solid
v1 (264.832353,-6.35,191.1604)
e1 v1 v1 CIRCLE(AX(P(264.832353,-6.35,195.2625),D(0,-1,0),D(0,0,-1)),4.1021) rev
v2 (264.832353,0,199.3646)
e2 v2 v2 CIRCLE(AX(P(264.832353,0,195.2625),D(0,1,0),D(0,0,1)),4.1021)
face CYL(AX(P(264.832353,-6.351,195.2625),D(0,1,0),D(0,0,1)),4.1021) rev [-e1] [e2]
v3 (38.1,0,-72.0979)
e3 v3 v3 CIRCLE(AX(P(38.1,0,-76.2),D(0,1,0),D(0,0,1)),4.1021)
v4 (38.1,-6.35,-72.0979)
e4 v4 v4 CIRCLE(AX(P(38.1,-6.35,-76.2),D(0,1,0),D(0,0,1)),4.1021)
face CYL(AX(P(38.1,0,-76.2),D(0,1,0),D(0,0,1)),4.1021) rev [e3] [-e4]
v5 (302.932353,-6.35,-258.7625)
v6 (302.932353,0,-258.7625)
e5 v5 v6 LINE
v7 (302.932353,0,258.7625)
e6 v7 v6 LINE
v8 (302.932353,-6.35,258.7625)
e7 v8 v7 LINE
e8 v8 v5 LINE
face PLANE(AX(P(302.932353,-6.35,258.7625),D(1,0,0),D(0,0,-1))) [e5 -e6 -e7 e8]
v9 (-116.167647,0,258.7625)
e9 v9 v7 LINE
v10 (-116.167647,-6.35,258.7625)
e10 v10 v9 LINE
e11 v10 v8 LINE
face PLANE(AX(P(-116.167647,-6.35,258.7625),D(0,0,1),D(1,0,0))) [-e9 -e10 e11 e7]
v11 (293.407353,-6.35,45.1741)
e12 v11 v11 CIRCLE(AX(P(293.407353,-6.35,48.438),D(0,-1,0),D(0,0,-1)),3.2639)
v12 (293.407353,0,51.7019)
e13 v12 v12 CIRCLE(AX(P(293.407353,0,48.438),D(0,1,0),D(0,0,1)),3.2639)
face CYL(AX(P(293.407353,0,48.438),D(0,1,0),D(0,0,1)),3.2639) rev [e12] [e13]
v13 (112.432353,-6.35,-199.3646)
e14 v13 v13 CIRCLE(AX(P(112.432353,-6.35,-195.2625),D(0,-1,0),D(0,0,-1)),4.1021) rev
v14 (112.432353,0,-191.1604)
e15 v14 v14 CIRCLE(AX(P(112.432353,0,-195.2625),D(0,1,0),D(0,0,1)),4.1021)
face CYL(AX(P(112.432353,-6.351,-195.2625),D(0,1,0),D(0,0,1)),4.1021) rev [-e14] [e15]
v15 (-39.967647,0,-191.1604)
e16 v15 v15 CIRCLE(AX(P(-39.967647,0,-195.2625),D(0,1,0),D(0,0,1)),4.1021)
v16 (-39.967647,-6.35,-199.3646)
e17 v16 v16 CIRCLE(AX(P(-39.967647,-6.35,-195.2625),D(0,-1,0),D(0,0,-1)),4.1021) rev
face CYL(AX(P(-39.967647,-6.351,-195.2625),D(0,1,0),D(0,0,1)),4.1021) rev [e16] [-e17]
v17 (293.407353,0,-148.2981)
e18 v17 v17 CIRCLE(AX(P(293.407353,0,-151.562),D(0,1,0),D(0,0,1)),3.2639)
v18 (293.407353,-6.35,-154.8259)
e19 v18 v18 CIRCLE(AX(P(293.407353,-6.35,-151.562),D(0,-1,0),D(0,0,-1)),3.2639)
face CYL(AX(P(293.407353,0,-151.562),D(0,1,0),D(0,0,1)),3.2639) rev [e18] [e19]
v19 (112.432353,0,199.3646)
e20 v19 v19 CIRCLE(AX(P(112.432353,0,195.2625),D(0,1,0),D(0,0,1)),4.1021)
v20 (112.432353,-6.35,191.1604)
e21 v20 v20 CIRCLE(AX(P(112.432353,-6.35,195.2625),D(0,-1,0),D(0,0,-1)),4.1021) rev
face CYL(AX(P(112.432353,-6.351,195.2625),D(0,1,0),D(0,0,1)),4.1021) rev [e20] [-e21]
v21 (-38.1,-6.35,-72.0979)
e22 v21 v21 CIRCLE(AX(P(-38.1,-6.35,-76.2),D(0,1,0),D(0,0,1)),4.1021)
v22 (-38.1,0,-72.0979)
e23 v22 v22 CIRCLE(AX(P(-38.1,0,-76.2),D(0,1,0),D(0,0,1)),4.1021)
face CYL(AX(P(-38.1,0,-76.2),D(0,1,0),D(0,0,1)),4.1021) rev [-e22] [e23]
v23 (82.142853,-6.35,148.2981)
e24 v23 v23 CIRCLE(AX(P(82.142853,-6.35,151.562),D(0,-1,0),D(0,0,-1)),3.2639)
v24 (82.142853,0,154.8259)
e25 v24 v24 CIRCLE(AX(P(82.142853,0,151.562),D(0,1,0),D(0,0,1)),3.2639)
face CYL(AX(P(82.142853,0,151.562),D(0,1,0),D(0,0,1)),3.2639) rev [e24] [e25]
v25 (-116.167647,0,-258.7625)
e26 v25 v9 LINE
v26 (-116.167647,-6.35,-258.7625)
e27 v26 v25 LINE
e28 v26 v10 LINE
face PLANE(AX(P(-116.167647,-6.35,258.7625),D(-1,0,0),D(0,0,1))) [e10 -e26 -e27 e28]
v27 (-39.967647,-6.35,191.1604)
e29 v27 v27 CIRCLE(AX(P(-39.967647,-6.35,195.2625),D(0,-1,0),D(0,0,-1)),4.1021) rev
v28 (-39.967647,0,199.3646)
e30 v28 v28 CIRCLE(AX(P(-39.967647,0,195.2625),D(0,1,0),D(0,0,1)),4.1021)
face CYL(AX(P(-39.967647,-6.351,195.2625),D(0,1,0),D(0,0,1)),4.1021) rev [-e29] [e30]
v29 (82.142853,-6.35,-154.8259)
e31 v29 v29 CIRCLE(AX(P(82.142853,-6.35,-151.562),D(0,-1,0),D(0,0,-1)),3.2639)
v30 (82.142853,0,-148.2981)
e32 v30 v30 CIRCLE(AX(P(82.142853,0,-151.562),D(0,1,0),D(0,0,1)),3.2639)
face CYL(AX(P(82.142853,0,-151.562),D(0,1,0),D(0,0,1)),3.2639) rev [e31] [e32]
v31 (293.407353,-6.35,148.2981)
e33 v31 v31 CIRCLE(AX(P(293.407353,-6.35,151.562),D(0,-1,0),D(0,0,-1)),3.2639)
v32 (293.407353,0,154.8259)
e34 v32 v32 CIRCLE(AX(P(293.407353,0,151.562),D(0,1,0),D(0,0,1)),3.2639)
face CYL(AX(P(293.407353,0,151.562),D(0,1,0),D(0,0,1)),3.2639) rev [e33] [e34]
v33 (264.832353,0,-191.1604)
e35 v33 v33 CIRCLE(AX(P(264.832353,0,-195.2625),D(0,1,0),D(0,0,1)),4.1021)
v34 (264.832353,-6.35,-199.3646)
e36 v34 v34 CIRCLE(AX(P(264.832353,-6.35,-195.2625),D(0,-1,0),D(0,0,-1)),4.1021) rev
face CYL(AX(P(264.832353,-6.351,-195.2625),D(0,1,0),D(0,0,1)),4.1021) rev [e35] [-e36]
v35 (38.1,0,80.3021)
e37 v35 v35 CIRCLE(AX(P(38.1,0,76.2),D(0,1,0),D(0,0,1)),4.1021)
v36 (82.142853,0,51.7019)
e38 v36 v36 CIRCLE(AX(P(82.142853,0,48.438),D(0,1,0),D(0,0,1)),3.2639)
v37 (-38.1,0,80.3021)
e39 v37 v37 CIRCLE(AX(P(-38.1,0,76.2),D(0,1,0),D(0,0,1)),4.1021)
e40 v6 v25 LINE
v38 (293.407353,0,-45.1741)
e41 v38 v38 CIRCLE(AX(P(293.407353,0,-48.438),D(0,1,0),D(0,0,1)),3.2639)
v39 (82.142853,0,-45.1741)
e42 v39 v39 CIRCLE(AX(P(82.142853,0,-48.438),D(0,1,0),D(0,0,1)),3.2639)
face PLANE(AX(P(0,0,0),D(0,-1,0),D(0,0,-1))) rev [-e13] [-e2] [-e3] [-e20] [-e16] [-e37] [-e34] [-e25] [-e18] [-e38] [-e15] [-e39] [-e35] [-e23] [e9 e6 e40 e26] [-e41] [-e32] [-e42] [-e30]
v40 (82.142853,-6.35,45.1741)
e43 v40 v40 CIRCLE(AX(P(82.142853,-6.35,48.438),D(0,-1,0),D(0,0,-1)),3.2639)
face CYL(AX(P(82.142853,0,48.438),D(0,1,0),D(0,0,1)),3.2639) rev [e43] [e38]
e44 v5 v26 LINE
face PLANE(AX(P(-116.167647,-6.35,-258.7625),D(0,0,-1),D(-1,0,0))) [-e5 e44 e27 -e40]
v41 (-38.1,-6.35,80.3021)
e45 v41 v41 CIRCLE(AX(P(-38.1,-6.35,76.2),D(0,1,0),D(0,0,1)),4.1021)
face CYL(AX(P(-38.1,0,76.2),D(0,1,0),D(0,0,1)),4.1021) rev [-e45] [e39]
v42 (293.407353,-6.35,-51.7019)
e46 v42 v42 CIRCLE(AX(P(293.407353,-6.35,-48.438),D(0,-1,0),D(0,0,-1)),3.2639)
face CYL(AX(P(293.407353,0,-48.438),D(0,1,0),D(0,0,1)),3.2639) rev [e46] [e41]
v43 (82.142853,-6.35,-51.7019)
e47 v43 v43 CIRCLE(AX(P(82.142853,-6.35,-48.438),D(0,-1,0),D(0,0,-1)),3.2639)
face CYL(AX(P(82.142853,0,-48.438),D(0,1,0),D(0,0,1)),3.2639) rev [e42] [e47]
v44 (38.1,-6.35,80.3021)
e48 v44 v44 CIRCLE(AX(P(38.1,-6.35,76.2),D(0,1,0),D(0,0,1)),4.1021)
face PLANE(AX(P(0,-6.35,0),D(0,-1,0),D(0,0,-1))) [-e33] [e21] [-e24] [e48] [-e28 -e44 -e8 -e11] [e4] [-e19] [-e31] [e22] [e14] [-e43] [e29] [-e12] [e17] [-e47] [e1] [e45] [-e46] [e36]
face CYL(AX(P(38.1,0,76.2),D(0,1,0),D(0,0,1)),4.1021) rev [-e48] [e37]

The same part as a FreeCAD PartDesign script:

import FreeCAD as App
import Part
import Sketcher
Q = App.Units.Quantity

doc = App.newDocument("Part")
body = doc.addObject("PartDesign::Body", "Body")

sketch1 = body.newObject("Sketcher::SketchObject", "Sketch")
sketch1.AttachmentSupport = (doc.getObject("XZ_Plane"), [""])
sketch1.MapMode = "FlatFace"
sketch1.addGeometry(Part.LineSegment(App.Vector(-116.167647, -258.7625, 0), App.Vector(-116.167647, 258.7625, 0)), False)
sketch1.addGeometry(Part.LineSegment(App.Vector(-116.167647, 258.7625, 0), App.Vector(302.932353, 258.7625, 0)), False)
sketch1.addGeometry(Part.LineSegment(App.Vector(302.932353, 258.7625, 0), App.Vector(302.932353, -258.7625, 0)), False)
sketch1.addGeometry(Part.LineSegment(App.Vector(302.932353, -258.7625, 0), App.Vector(-116.167647, -258.7625, 0)), False)
sketch1.addConstraint(Sketcher.Constraint("Coincident", 0, 2, 1, 1))
sketch1.addConstraint(Sketcher.Constraint("Coincident", 1, 2, 2, 1))
sketch1.addConstraint(Sketcher.Constraint("Coincident", 2, 2, 3, 1))
sketch1.addConstraint(Sketcher.Constraint("Coincident", 3, 2, 0, 1))
sketch1.addConstraint(Sketcher.Constraint("Vertical", 0))
sketch1.addConstraint(Sketcher.Constraint("Horizontal", 1))
sketch1.addConstraint(Sketcher.Constraint("Vertical", 2))
sketch1.addConstraint(Sketcher.Constraint("Horizontal", 3))
sketch1.addConstraint(Sketcher.Constraint("DistanceX", 1, 1, 1, 2, Q("16.5 in")))
sketch1.addConstraint(Sketcher.Constraint("DistanceY", 0, 1, 0, 2, Q("20.375 in")))
sketch1.addConstraint(Sketcher.Constraint("DistanceY", -1, 1, 0, 2, Q("10.1875 in")))
sketch1.addConstraint(Sketcher.Constraint("DistanceX", 0, 2, -1, 1, Q("116.167647 mm")))
pad1 = body.newObject("PartDesign::Pad", "Pad")
pad1.Profile = sketch1
pad1.Length = Q("0.25 in")

sketch2 = body.newObject("Sketcher::SketchObject", "Sketch001")
sketch2.AttachmentSupport = (doc.getObject("XZ_Plane"), [""])
sketch2.MapMode = "FlatFace"
sketch2.addGeometry(Part.Circle(App.Vector(82.142853, 151.562, 0), App.Vector(0, 0, 1), 3.2639), False)
sketch2.addGeometry(Part.Circle(App.Vector(293.407353, 151.562, 0), App.Vector(0, 0, 1), 3.2639), False)
sketch2.addGeometry(Part.Circle(App.Vector(82.142853, 48.438, 0), App.Vector(0, 0, 1), 3.2639), False)
sketch2.addGeometry(Part.Circle(App.Vector(293.407353, 48.438, 0), App.Vector(0, 0, 1), 3.2639), False)
sketch2.addGeometry(Part.Circle(App.Vector(293.407353, -48.438, 0), App.Vector(0, 0, 1), 3.2639), False)
sketch2.addGeometry(Part.Circle(App.Vector(82.142853, -48.438, 0), App.Vector(0, 0, 1), 3.2639), False)
sketch2.addGeometry(Part.Circle(App.Vector(82.142853, -151.562, 0), App.Vector(0, 0, 1), 3.2639), False)
sketch2.addGeometry(Part.Circle(App.Vector(293.407353, -151.562, 0), App.Vector(0, 0, 1), 3.2639), False)
sketch2.addConstraint(Sketcher.Constraint("Equal", 0, 1))
sketch2.addConstraint(Sketcher.Constraint("Equal", 1, 2))
sketch2.addConstraint(Sketcher.Constraint("Equal", 2, 3))
sketch2.addConstraint(Sketcher.Constraint("Equal", 3, 4))
sketch2.addConstraint(Sketcher.Constraint("Equal", 4, 5))
sketch2.addConstraint(Sketcher.Constraint("Equal", 5, 6))
sketch2.addConstraint(Sketcher.Constraint("Equal", 6, 7))
sketch2.addConstraint(Sketcher.Constraint("Symmetric", 3, 3, 4, 3, -1))
sketch2.addConstraint(Sketcher.Constraint("Symmetric", 2, 3, 5, 3, -1))
sketch2.addConstraint(Sketcher.Constraint("Symmetric", 0, 3, 6, 3, -1))
sketch2.addConstraint(Sketcher.Constraint("Symmetric", 1, 3, 7, 3, -1))
sketch2.addConstraint(Sketcher.Constraint("Horizontal", 0, 3, 1, 3))
sketch2.addConstraint(Sketcher.Constraint("Horizontal", 2, 3, 3, 3))
sketch2.addConstraint(Sketcher.Constraint("Vertical", 0, 3, 2, 3))
sketch2.addConstraint(Sketcher.Constraint("Vertical", 1, 3, 3, 3))
sketch2.addConstraint(Sketcher.Constraint("Diameter", 0, Q("0.257 in")))
sketch2.addConstraint(Sketcher.Constraint("DistanceY", 2, 3, 0, 3, Q("4.06 in")))
sketch2.addConstraint(Sketcher.Constraint("DistanceX", 0, 3, 1, 3, Q("8.3175 in")))
sketch2.addConstraint(Sketcher.Constraint("DistanceY", -1, 1, 0, 3, Q("151.562 mm")))
sketch2.addConstraint(Sketcher.Constraint("DistanceX", -1, 1, 0, 3, Q("82.142853 mm")))
doc.recompute()
hole = body.newObject("PartDesign::Hole", "Hole")
hole.Profile = sketch2
hole.ThreadType = "None"
hole.Diameter = Q("0.257 in")
hole.DepthType = "Dimension"
hole.Depth = Q("0.25 in")
hole.DrillPoint = "Flat"
hole.Reversed = True

sketch3 = body.newObject("Sketcher::SketchObject", "Sketch002")
sketch3.AttachmentSupport = (doc.getObject("XZ_Plane"), [""])
sketch3.MapMode = "FlatFace"
sketch3.addGeometry(Part.Circle(App.Vector(-38.1, 76.2, 0), App.Vector(0, 0, 1), 4.1021), False)
sketch3.addGeometry(Part.Circle(App.Vector(38.1, 76.2, 0), App.Vector(0, 0, 1), 4.1021), False)
sketch3.addGeometry(Part.Circle(App.Vector(38.1, -76.2, 0), App.Vector(0, 0, 1), 4.1021), False)
sketch3.addGeometry(Part.Circle(App.Vector(-38.1, -76.2, 0), App.Vector(0, 0, 1), 4.1021), False)
sketch3.addConstraint(Sketcher.Constraint("Equal", 0, 1))
sketch3.addConstraint(Sketcher.Constraint("Equal", 1, 2))
sketch3.addConstraint(Sketcher.Constraint("Equal", 2, 3))
sketch3.addConstraint(Sketcher.Constraint("Symmetric", 0, 3, 2, 3, -1, 1))
sketch3.addConstraint(Sketcher.Constraint("Symmetric", 1, 3, 3, 3, -1, 1))
sketch3.addConstraint(Sketcher.Constraint("Symmetric", 0, 3, 1, 3, -2))
sketch3.addConstraint(Sketcher.Constraint("Diameter", 0, Q("0.323 in")))
sketch3.addConstraint(Sketcher.Constraint("DistanceY", -1, 1, 0, 3, Q("3 in")))
sketch3.addConstraint(Sketcher.Constraint("DistanceX", 0, 3, 1, 3, Q("3 in")))
doc.recompute()
hole2 = body.newObject("PartDesign::Hole", "Hole001")
hole2.Profile = sketch3
hole2.ThreadType = "None"
hole2.Diameter = Q("0.323 in")
hole2.DepthType = "ThroughAll"
hole2.Reversed = True

sketch4 = body.newObject("Sketcher::SketchObject", "Sketch003")
sketch4.AttachmentSupport = (doc.getObject("XZ_Plane"), [""])
sketch4.MapMode = "FlatFace"
sketch4.addGeometry(Part.Circle(App.Vector(264.832353, 195.2625, 0), App.Vector(0, 0, 1), 4.1021), False)
sketch4.addConstraint(Sketcher.Constraint("Diameter", 0, Q("0.323 in")))
sketch4.addConstraint(Sketcher.Constraint("DistanceY", -1, 1, 0, 3, Q("7.6875 in")))
sketch4.addConstraint(Sketcher.Constraint("DistanceX", -1, 1, 0, 3, Q("264.832353 mm")))
pocket1 = body.newObject("PartDesign::Pocket", "Pocket")
pocket1.Profile = sketch4
pocket1.Type = "UpToFirst"
pocket1.Reversed = True

sketch5 = body.newObject("Sketcher::SketchObject", "Sketch004")
sketch5.AttachmentSupport = (doc.getObject("XZ_Plane"), [""])
sketch5.MapMode = "FlatFace"
sketch5.addGeometry(Part.Circle(App.Vector(112.432353, 195.2625, 0), App.Vector(0, 0, 1), 4.1021), False)
sketch5.addConstraint(Sketcher.Constraint("Diameter", 0, Q("0.323 in")))
sketch5.addConstraint(Sketcher.Constraint("DistanceY", -1, 1, 0, 3, Q("7.6875 in")))
sketch5.addConstraint(Sketcher.Constraint("DistanceX", -1, 1, 0, 3, Q("112.432353 mm")))
pocket2 = body.newObject("PartDesign::Pocket", "Pocket001")
pocket2.Profile = sketch5
pocket2.Type = "UpToFirst"
pocket2.Reversed = True

sketch6 = body.newObject("Sketcher::SketchObject", "Sketch005")
sketch6.AttachmentSupport = (doc.getObject("XZ_Plane"), [""])
sketch6.MapMode = "FlatFace"
sketch6.addGeometry(Part.Circle(App.Vector(-39.967647, 195.2625, 0), App.Vector(0, 0, 1), 4.1021), False)
sketch6.addConstraint(Sketcher.Constraint("Diameter", 0, Q("0.323 in")))
sketch6.addConstraint(Sketcher.Constraint("DistanceY", -1, 1, 0, 3, Q("7.6875 in")))
sketch6.addConstraint(Sketcher.Constraint("DistanceX", 0, 3, -1, 1, Q("39.967647 mm")))
pocket3 = body.newObject("PartDesign::Pocket", "Pocket002")
pocket3.Profile = sketch6
pocket3.Type = "UpToFirst"
pocket3.Reversed = True

sketch7 = body.newObject("Sketcher::SketchObject", "Sketch006")
sketch7.AttachmentSupport = (doc.getObject("XZ_Plane"), [""])
sketch7.MapMode = "FlatFace"
sketch7.addGeometry(Part.Circle(App.Vector(112.432353, -195.2625, 0), App.Vector(0, 0, 1), 4.1021), False)
sketch7.addConstraint(Sketcher.Constraint("Diameter", 0, Q("0.323 in")))
sketch7.addConstraint(Sketcher.Constraint("DistanceY", 0, 3, -1, 1, Q("7.6875 in")))
sketch7.addConstraint(Sketcher.Constraint("DistanceX", -1, 1, 0, 3, Q("112.432353 mm")))
pocket4 = body.newObject("PartDesign::Pocket", "Pocket003")
pocket4.Profile = sketch7
pocket4.Type = "UpToFirst"
pocket4.Reversed = True

sketch8 = body.newObject("Sketcher::SketchObject", "Sketch007")
sketch8.AttachmentSupport = (doc.getObject("XZ_Plane"), [""])
sketch8.MapMode = "FlatFace"
sketch8.addGeometry(Part.Circle(App.Vector(-39.967647, -195.2625, 0), App.Vector(0, 0, 1), 4.1021), False)
sketch8.addConstraint(Sketcher.Constraint("Diameter", 0, Q("0.323 in")))
sketch8.addConstraint(Sketcher.Constraint("DistanceY", 0, 3, -1, 1, Q("7.6875 in")))
sketch8.addConstraint(Sketcher.Constraint("DistanceX", 0, 3, -1, 1, Q("39.967647 mm")))
pocket5 = body.newObject("PartDesign::Pocket", "Pocket004")
pocket5.Profile = sketch8
pocket5.Type = "UpToFirst"
pocket5.Reversed = True

sketch9 = body.newObject("Sketcher::SketchObject", "Sketch008")
sketch9.AttachmentSupport = (doc.getObject("XZ_Plane"), [""])
sketch9.MapMode = "FlatFace"
sketch9.addGeometry(Part.Circle(App.Vector(264.832353, -195.2625, 0), App.Vector(0, 0, 1), 4.1021), False)
sketch9.addConstraint(Sketcher.Constraint("Diameter", 0, Q("0.323 in")))
sketch9.addConstraint(Sketcher.Constraint("DistanceY", 0, 3, -1, 1, Q("7.6875 in")))
sketch9.addConstraint(Sketcher.Constraint("DistanceX", -1, 1, 0, 3, Q("264.832353 mm")))
pocket6 = body.newObject("PartDesign::Pocket", "Pocket005")
pocket6.Profile = sketch9
pocket6.Type = "UpToFirst"
pocket6.Reversed = True

doc.recompute()
